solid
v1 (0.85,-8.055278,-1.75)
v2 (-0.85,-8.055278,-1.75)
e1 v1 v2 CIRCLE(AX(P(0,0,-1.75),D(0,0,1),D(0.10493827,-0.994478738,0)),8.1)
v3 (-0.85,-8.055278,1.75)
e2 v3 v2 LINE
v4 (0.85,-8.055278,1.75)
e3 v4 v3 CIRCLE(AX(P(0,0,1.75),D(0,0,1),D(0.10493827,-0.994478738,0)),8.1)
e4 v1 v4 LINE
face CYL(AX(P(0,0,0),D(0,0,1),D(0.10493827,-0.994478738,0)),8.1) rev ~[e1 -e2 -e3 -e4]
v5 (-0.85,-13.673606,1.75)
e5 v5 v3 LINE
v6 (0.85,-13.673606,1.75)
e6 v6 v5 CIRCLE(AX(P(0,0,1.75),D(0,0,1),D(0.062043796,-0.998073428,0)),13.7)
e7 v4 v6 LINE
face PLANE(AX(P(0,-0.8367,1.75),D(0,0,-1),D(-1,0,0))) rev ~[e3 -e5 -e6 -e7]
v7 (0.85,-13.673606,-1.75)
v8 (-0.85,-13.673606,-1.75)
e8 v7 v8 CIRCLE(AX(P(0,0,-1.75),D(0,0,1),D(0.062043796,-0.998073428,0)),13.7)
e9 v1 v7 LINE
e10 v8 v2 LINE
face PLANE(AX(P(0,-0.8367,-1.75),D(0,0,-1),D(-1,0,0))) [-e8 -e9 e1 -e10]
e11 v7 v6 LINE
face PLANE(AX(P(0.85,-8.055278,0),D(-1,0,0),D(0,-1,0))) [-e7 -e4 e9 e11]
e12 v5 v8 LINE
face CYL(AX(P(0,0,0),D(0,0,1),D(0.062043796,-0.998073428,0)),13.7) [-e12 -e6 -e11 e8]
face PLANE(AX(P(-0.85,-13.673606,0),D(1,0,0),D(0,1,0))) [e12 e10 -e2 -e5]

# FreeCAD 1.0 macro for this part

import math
import FreeCAD as App
import Part
import Sketcher

doc = App.newDocument("Part")
body = doc.addObject("PartDesign::Body", "Body")

# Sketch on XY plane
sketch1 = body.newObject("Sketcher::SketchObject", "Sketch")
sketch1.AttachmentSupport = (doc.getObject("XY_Plane"), [""])
sketch1.MapMode = "FlatFace"
sketch1.addGeometry(Part.ArcOfCircle(Part.Circle(App.Vector(0, 0, 0), App.Vector(0, 0, 1), 8.1), math.radians(-83.97639), math.radians(263.97639)), False)
sketch1.addGeometry(Part.LineSegment(App.Vector(0.85, -8.055278, 0), App.Vector(0.85, -13.673606, 0)), False)
sketch1.addGeometry(Part.ArcOfCircle(Part.Circle(App.Vector(0, 0, 0), App.Vector(0, 0, 1), 13.7), math.radians(-86.442868), math.radians(266.442868)), False)
sketch1.addGeometry(Part.LineSegment(App.Vector(-0.85, -13.673606, 0), App.Vector(-0.85, -8.055278, 0)), False)
sketch1.addConstraint(Sketcher.Constraint("Coincident", 0, 1, 1, 1))
sketch1.addConstraint(Sketcher.Constraint("Coincident", 1, 2, 2, 1))
sketch1.addConstraint(Sketcher.Constraint("Coincident", 2, 2, 3, 1))
sketch1.addConstraint(Sketcher.Constraint("Coincident", 3, 2, 0, 2))
sketch1.addConstraint(Sketcher.Constraint("Vertical", 1))
sketch1.addConstraint(Sketcher.Constraint("Vertical", 3))
sketch1.addConstraint(Sketcher.Constraint("Coincident", 0, 3, -1, 1))
sketch1.addConstraint(Sketcher.Constraint("Coincident", 2, 3, -1, 1))
sketch1.addConstraint(Sketcher.Constraint("Horizontal", 1, 2, 2, 2))
sketch1.addConstraint(Sketcher.Constraint("Radius", 0, 8.1))
sketch1.addConstraint(Sketcher.Constraint("Radius", 2, 13.7))
sketch1.addConstraint(Sketcher.Constraint("DistanceX", 2, 2, 1, 2, 1.7))
pad1 = body.newObject("PartDesign::Pad", "Pad")
pad1.Profile = sketch1
pad1.Length = 3.5
pad1.Midplane = True

doc.recompute()
